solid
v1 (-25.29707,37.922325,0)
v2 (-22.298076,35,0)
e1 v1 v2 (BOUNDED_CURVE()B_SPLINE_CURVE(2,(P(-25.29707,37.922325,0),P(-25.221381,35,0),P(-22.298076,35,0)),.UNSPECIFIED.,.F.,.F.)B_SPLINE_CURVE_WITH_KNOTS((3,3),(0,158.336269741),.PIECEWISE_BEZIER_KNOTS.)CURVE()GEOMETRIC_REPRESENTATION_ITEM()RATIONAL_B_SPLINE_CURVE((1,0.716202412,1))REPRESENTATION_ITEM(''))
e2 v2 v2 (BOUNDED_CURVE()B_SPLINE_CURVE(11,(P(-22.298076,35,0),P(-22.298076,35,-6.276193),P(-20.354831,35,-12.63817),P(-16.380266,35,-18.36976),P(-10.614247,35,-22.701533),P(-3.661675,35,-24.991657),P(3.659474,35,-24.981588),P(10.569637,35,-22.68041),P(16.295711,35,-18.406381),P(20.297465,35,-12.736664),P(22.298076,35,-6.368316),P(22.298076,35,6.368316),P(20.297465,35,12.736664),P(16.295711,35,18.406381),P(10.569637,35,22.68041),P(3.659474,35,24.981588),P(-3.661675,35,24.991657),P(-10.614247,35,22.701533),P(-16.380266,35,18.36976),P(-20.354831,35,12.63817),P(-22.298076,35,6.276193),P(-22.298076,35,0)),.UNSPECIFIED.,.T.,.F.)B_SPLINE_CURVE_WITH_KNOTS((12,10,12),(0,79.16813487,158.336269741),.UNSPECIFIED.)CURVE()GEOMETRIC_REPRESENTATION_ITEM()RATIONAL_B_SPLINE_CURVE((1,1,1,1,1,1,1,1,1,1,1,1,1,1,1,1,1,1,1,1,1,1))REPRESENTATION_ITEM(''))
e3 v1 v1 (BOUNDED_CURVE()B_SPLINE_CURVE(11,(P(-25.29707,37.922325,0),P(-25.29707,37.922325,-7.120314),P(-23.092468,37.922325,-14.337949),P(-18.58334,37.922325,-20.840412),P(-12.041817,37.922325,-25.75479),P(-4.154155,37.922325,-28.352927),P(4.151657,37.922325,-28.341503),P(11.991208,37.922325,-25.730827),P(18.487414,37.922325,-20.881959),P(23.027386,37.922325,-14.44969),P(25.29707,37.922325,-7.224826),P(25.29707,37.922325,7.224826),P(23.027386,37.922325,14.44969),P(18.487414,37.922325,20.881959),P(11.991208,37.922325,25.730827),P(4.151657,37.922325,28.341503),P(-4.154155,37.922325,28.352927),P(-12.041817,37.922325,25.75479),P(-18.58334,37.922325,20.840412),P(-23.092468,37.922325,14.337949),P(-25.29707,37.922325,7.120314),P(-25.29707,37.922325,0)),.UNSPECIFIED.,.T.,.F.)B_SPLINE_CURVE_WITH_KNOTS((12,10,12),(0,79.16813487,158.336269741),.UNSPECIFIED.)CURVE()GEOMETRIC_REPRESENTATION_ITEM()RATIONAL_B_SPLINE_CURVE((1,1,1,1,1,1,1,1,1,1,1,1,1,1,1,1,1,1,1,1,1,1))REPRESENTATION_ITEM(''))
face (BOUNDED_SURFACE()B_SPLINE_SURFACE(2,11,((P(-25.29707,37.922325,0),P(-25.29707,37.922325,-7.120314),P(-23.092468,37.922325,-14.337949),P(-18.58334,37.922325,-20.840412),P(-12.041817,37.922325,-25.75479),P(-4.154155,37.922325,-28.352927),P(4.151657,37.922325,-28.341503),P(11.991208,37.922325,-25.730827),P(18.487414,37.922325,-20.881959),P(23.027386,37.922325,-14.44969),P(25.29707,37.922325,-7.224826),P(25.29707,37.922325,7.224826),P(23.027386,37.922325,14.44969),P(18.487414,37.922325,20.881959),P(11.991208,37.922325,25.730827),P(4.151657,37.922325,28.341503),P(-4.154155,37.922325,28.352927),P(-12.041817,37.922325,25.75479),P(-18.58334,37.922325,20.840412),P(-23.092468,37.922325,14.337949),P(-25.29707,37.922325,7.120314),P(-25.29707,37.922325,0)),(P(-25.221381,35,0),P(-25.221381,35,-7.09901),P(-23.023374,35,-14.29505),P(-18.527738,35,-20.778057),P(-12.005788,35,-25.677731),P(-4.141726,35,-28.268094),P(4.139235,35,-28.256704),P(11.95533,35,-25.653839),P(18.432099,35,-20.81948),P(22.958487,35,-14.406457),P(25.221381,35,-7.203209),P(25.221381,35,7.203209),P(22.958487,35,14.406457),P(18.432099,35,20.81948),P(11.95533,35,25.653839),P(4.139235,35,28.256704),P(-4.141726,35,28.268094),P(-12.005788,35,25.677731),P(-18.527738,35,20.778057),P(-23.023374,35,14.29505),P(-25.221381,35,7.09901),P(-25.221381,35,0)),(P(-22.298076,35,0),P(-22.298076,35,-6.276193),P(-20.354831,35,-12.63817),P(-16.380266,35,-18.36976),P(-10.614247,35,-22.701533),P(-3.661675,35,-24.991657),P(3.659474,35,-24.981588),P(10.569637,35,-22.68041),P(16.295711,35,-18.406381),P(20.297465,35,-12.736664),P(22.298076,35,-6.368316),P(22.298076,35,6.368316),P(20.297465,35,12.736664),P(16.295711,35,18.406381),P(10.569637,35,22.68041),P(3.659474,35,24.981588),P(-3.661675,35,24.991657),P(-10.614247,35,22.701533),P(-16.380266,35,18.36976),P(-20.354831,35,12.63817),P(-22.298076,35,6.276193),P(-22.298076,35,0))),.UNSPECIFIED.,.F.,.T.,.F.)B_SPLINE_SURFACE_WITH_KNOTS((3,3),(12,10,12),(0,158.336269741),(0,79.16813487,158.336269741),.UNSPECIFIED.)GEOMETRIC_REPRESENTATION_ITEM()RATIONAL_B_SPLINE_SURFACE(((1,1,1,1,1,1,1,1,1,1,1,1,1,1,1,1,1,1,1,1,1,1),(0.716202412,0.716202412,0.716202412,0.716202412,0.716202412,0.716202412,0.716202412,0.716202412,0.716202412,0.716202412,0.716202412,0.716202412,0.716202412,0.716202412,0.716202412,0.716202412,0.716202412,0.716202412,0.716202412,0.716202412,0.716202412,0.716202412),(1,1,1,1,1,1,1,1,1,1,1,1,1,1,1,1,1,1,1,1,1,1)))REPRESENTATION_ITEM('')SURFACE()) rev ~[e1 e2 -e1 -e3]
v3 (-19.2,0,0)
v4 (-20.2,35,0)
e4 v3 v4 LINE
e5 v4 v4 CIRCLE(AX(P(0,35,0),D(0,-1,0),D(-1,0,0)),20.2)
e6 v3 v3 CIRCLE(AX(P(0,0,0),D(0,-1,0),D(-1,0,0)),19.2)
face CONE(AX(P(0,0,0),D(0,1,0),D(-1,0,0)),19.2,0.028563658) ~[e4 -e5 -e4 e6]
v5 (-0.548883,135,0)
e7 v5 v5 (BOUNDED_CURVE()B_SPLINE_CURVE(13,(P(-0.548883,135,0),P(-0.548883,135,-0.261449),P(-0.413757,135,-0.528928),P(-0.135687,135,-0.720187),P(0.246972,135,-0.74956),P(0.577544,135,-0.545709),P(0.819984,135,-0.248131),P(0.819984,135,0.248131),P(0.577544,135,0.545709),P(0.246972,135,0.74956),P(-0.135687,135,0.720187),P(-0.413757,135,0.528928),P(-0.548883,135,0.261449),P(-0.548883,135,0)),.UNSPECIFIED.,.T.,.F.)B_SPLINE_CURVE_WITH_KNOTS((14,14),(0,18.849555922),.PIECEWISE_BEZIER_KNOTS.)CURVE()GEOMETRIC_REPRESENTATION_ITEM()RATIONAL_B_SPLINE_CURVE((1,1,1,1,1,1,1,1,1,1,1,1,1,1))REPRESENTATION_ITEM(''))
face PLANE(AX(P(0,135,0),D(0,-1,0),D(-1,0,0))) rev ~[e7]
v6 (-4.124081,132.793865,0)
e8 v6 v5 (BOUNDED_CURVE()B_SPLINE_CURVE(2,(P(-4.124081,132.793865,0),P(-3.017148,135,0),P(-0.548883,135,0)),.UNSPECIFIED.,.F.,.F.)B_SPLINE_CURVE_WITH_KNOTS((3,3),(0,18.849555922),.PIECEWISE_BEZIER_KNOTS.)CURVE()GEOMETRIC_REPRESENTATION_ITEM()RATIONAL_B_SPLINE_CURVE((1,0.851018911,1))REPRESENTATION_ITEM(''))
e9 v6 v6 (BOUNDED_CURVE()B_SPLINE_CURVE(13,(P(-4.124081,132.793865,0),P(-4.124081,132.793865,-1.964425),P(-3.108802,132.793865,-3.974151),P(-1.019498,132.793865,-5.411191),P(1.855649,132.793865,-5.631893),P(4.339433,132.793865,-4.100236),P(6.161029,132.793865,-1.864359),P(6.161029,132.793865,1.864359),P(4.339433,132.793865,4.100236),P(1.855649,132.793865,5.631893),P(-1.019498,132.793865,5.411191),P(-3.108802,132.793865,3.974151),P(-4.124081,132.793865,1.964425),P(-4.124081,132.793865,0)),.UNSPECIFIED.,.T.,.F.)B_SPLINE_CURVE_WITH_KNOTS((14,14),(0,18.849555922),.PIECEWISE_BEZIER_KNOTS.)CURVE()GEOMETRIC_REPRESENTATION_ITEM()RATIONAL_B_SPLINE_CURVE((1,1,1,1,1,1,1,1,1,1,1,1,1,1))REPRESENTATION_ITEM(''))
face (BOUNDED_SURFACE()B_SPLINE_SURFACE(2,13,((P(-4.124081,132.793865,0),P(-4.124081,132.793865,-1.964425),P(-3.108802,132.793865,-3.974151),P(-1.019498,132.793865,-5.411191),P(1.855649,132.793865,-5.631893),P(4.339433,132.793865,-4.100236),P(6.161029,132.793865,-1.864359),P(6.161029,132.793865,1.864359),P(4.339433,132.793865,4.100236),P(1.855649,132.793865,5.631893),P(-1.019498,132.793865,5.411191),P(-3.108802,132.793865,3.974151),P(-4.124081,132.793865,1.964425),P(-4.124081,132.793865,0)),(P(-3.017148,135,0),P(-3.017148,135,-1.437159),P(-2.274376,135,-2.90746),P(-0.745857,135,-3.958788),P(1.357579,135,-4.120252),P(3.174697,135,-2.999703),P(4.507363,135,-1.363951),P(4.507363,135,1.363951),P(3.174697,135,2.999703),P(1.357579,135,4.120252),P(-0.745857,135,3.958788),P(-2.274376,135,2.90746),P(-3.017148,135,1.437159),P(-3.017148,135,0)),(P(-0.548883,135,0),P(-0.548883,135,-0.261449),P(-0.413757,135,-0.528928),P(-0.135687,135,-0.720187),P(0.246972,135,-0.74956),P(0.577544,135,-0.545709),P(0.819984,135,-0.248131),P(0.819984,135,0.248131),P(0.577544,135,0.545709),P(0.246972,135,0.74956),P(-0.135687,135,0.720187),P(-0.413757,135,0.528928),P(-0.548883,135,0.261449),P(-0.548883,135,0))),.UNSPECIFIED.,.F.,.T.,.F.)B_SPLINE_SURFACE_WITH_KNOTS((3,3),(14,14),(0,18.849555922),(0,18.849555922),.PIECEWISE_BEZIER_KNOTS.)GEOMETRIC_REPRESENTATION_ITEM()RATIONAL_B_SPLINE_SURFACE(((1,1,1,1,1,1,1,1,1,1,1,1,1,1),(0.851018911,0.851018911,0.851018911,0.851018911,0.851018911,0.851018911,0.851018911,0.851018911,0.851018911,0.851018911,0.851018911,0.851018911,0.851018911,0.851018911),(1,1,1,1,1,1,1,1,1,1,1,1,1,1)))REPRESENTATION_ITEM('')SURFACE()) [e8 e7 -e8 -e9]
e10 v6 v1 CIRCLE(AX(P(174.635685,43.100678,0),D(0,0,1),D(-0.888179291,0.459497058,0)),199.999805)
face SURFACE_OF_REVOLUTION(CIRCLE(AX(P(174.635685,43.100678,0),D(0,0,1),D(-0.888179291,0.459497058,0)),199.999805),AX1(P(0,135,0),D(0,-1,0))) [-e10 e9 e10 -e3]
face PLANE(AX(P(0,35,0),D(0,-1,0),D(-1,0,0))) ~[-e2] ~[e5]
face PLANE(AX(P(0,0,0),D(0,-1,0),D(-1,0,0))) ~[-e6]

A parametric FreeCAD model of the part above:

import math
import FreeCAD as App
import Part
import Sketcher

V = App.Vector
Q = App.Units.Quantity


def edges_at(feature, points):
    """Names of the edges that pass closest to the given points."""
    edges = feature.Shape.Edges
    near = lambda p: min(range(len(edges)), key=lambda i: edges[i].distToShape(Part.Vertex(*p))[0])
    return sorted({f"Edge{near(p) + 1}" for p in points})

doc = App.newDocument("Part")
body = doc.addObject("PartDesign::Body", "Body")

sketch1 = doc.addObject("Sketcher::SketchObject", "Sketch")
body.addObject(sketch1)
sketch1.AttachmentSupport = (doc.XY_Plane, [""])
sketch1.MapMode = "FlatFace"
sketch1.addGeometry(Part.LineSegment(V(-19.2, 0, 0), V(0, 0, 0)), False)
sketch1.addGeometry(Part.LineSegment(V(0, 0, 0), V(0, 135, 0)), False)
sketch1.addGeometry(Part.LineSegment(V(0, 135, 0), V(-3, 135, 0)), False)
sketch1.addGeometry(Part.ArcOfCircle(Part.Circle(V(174.6, 43.1, 0), V(0, 0, 1), 200), math.radians(153), math.radians(182)), False)
sketch1.addGeometry(Part.LineSegment(V(-25.2, 35, 0), V(-20.2, 35, 0)), False)
sketch1.addGeometry(Part.LineSegment(V(-20.2, 35, 0), V(-19.2, 0, 0)), False)
sketch1.addConstraint(Sketcher.Constraint("Coincident", 0, 2, 1, 1))
sketch1.addConstraint(Sketcher.Constraint("Coincident", 1, 2, 2, 1))
sketch1.addConstraint(Sketcher.Constraint("Coincident", 2, 2, 3, 1))
sketch1.addConstraint(Sketcher.Constraint("Coincident", 3, 2, 4, 1))
sketch1.addConstraint(Sketcher.Constraint("Coincident", 4, 2, 5, 1))
sketch1.addConstraint(Sketcher.Constraint("Coincident", 5, 2, 0, 1))
sketch1.addConstraint(Sketcher.Constraint("Horizontal", 0))
sketch1.addConstraint(Sketcher.Constraint("Vertical", 1))
sketch1.addConstraint(Sketcher.Constraint("Horizontal", 2))
sketch1.addConstraint(Sketcher.Constraint("Horizontal", 4))
sketch1.addConstraint(Sketcher.Constraint("Coincident", 0, 2, -1, 1))
sketch1.addConstraint(Sketcher.Constraint("Radius", 3, Q("200 mm")))
sketch1.addConstraint(Sketcher.Constraint("DistanceX", 2, 2, 2, 1, Q("3 mm")))
sketch1.addConstraint(Sketcher.Constraint("DistanceX", 4, 1, 4, 2, Q("5 mm")))
sketch1.addConstraint(Sketcher.Constraint("DistanceX", 0, 1, 0, 2, Q("19.2 mm")))
sketch1.addConstraint(Sketcher.Constraint("DistanceY", -1, 1, 3, 2, Q("35 mm")))
sketch1.addConstraint(Sketcher.Constraint("DistanceY", 3, 2, 2, 2, Q("100 mm")))
sketch1.addConstraint(Sketcher.Constraint("DistanceX", 4, 2, 5, 2, Q("1 mm")))
revolution = doc.addObject("PartDesign::Revolution", "Revolution")
body.addObject(revolution)
revolution.Profile = sketch1
revolution.ReferenceAxis = (sketch1, ["V_Axis"])
revolution.Angle = 360
doc.recompute()

fillet = doc.addObject("PartDesign::Fillet", "Fillet")
body.addObject(fillet)
fillet.Base = (revolution, edges_at(revolution, [(3, 135, 0)]))
fillet.Radius = 4
doc.recompute()

fillet2 = doc.addObject("PartDesign::Fillet", "Fillet001")
body.addObject(fillet2)
fillet2.Base = (fillet, edges_at(fillet, [(25.2, 35, 0)]))
fillet2.Radius = 3

doc.recompute()
